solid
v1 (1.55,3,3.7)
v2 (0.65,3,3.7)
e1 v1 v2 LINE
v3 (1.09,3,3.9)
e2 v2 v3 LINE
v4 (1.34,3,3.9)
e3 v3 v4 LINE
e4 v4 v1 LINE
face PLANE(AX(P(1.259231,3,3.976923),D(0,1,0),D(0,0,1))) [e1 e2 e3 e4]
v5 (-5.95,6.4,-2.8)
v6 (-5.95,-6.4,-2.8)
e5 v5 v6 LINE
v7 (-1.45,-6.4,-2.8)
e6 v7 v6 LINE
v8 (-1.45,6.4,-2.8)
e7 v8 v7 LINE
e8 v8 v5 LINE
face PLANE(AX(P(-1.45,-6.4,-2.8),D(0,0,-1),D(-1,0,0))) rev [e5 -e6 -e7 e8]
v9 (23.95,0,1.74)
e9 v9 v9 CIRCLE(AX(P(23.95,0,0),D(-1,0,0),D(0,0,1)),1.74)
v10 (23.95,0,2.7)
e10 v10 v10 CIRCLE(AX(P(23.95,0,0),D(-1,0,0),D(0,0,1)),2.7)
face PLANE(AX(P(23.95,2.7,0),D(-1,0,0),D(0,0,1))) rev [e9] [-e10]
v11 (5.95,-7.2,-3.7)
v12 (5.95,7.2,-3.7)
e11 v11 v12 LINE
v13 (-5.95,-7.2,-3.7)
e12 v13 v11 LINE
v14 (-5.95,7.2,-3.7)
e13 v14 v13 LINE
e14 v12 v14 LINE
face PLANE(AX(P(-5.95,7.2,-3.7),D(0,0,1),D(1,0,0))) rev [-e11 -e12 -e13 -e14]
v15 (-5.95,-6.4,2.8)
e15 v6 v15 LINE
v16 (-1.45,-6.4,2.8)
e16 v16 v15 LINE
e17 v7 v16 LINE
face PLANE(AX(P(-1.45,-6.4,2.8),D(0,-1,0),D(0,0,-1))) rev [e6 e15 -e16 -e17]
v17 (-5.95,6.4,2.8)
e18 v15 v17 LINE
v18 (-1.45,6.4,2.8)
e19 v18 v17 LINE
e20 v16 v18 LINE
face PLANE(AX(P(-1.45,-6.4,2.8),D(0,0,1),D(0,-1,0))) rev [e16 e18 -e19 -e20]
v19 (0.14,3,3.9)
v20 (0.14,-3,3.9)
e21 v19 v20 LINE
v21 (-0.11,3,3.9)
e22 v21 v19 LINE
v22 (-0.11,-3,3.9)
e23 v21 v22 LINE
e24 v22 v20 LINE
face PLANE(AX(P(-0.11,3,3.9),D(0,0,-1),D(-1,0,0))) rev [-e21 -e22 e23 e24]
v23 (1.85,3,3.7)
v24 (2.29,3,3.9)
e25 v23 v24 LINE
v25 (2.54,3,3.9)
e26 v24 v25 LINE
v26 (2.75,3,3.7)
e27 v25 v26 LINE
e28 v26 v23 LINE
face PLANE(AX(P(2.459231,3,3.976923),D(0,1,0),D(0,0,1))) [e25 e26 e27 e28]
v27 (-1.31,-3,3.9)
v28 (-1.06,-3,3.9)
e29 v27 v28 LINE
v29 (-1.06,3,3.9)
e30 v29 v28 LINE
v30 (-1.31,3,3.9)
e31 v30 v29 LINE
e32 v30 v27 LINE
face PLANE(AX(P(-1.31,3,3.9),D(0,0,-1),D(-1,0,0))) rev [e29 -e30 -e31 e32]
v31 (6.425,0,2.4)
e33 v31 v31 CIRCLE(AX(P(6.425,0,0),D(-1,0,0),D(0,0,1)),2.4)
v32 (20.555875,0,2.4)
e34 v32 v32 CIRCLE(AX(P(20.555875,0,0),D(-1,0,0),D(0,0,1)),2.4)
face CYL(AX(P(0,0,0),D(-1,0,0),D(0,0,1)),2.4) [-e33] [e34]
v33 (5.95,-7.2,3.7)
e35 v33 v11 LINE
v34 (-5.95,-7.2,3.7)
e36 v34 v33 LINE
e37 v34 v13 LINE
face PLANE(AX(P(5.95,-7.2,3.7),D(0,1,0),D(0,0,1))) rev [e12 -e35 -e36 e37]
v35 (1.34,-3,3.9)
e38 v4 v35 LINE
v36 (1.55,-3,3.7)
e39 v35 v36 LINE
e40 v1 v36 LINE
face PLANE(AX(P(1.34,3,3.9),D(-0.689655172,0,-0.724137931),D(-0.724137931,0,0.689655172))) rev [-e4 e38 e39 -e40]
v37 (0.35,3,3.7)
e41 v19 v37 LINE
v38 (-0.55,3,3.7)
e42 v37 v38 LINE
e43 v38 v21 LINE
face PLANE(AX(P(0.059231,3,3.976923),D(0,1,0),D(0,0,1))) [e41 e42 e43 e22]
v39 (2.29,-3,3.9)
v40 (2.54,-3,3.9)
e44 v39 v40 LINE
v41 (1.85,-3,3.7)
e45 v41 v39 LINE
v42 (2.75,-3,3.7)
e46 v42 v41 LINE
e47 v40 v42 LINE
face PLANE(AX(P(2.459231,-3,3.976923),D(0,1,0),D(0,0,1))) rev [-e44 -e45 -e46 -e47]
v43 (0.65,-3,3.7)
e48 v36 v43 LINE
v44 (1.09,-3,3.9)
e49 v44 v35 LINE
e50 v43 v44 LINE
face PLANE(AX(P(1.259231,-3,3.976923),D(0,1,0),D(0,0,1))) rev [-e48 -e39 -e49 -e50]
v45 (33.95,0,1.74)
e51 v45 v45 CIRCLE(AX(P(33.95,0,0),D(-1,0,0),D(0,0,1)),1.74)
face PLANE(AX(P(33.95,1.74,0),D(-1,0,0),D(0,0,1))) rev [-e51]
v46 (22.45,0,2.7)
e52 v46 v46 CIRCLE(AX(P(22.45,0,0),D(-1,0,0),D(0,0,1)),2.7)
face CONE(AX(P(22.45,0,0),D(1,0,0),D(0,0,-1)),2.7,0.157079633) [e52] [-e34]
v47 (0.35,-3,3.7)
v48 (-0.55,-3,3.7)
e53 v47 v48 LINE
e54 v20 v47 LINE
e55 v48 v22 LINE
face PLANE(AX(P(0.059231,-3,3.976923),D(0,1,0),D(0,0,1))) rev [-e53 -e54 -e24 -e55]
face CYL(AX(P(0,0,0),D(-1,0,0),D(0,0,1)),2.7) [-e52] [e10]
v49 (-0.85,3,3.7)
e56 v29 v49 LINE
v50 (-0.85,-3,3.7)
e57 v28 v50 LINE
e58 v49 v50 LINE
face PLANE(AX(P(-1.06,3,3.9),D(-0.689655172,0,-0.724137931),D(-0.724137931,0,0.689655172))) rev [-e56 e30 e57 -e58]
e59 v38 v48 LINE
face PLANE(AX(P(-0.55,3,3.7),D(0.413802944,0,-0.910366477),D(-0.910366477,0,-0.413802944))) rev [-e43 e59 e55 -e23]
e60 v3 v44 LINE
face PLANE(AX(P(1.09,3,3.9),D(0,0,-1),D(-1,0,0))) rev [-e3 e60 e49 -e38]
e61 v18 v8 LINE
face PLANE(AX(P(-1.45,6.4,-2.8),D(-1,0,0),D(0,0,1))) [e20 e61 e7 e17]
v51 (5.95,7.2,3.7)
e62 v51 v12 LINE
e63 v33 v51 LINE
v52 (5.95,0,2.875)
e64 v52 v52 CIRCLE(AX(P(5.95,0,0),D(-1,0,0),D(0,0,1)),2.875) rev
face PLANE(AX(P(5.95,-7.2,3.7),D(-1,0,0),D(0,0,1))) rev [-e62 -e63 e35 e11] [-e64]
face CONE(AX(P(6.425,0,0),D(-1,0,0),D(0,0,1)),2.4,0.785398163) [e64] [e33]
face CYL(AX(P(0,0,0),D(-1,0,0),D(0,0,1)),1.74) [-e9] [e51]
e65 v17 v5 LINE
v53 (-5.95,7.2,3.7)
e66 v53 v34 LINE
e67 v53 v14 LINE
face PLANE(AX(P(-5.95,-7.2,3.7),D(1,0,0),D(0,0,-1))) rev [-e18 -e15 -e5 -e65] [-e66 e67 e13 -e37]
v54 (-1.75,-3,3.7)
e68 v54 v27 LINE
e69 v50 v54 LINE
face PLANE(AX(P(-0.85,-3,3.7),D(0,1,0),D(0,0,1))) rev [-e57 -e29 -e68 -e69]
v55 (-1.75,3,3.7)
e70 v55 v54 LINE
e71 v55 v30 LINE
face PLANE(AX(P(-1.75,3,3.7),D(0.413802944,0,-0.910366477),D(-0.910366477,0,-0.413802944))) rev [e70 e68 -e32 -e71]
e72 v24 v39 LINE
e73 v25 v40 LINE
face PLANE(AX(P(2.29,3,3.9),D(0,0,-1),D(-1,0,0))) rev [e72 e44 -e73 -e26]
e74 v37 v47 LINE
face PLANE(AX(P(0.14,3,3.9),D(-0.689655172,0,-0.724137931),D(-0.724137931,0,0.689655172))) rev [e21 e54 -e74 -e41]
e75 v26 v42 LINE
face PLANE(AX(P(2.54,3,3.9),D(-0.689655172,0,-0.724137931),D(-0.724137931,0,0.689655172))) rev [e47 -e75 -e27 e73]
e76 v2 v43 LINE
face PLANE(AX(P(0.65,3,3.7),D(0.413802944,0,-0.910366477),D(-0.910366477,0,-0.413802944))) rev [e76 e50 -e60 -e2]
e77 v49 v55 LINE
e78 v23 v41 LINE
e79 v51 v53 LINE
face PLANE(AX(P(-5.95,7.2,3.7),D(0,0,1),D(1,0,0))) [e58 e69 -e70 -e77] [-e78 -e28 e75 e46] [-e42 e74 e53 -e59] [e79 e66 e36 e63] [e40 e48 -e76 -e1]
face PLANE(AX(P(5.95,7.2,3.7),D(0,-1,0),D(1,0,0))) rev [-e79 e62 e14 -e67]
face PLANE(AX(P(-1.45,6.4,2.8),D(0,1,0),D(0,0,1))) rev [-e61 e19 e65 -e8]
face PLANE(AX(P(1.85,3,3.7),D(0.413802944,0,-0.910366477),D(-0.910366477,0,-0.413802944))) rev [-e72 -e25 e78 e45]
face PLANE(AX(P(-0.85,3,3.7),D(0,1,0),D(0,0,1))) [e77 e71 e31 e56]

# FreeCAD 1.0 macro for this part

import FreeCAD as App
import Part
import Sketcher
from FreeCAD import Vector
Q = App.Units.Quantity


def add_polygon(sketch, points):
    """Adds a closed chain of lines whose ends are joined by coincident constraints."""
    first, n = sketch.GeometryCount, len(points)
    for a, b in zip(points, points[1:] + points[:1]):
        sketch.addGeometry(Part.LineSegment(App.Vector(*a, 0), App.Vector(*b, 0)), False)
    for i in range(n):
        sketch.addConstraint(Sketcher.Constraint("Coincident", first + i, 2, first + (i + 1) % n, 1))

doc = App.newDocument("Part")
body = doc.addObject("PartDesign::Body", "Body")

sketch1 = body.newObject("Sketcher::SketchObject", "Sketch")
sketch1.AttachmentSupport = (doc.getObject("XY_Plane"), [""])
sketch1.MapMode = "FlatFace"
add_polygon(sketch1, [(-6, 7), (-6, -7), (6, -7), (6, 7)])
sketch1.addConstraint([
    Sketcher.Constraint("Vertical", 0),
    Sketcher.Constraint("Horizontal", 1),
    Sketcher.Constraint("Vertical", 2),
    Sketcher.Constraint("Horizontal", 3),
    Sketcher.Constraint("Symmetric", 0, 2, 2, 2, -1, 1),
    Sketcher.Constraint("DistanceX", 1, 1, 1, 2, 11.9),
    Sketcher.Constraint("DistanceY", 0, 2, 0, 1, 14.4),
])
pad1 = body.newObject("PartDesign::Pad", "Pad")
pad1.Profile = sketch1
pad1.Length = 7.4
pad1.Midplane = True

sketch2 = body.newObject("Sketcher::SketchObject", "Sketch001")
sketch2.AttachmentSupport = (doc.getObject("XY_Plane"), [""])
sketch2.MapMode = "FlatFace"
add_polygon(sketch2, [(6, 2.9), (6, 0), (34, 0), (34, 1.7), (23.9, 1.7), (23.9, 2.7), (22.4, 2.7), (20.6, 2.4), (6.4, 2.4)])
sketch2.addConstraint([
    Sketcher.Constraint("Vertical", 0),
    Sketcher.Constraint("Horizontal", 1),
    Sketcher.Constraint("Vertical", 2),
    Sketcher.Constraint("Horizontal", 3),
    Sketcher.Constraint("Vertical", 4),
    Sketcher.Constraint("Horizontal", 5),
    Sketcher.Constraint("Horizontal", 7),
    Sketcher.Constraint("PointOnObject", 0, 2, -1),
    Sketcher.Constraint("DistanceX", 1, 1, 1, 2, 28.0),
    Sketcher.Constraint("DistanceX", 3, 2, 3, 1, 10.0),
    Sketcher.Constraint("Angle", 6, Q("-171 deg")),
    Sketcher.Constraint("Angle", 8, Q("135 deg")),
    Sketcher.Constraint("DistanceX", 5, 2, 5, 1, 1.5),
    Sketcher.Constraint("DistanceY", 2, 1, 2, 2, 1.74),
    Sketcher.Constraint("DistanceY", 4, 1, 4, 2, 0.96),
    Sketcher.Constraint("DistanceY", -1, 1, 6, 2, 2.4),
    Sketcher.Constraint("DistanceY", 0, 2, 0, 1, 2.875),
    Sketcher.Constraint("DistanceX", -1, 1, 0, 2, 5.95),
])
revolution = body.newObject("PartDesign::Revolution", "Revolution")
revolution.Profile = sketch2
revolution.ReferenceAxis = (sketch2, ["H_Axis"])
revolution.Angle = 360

sketch3 = body.newObject("Sketcher::SketchObject", "Sketch002")
sketch3.AttachmentSupport = (doc.getObject("XZ_Plane"), [""])
sketch3.MapMode = "FlatFace"
add_polygon(sketch3, [(-1.75, 3.7), (-1.31, 3.9), (-1.06, 3.9), (-0.85, 3.7)])
add_polygon(sketch3, [(0.35, 3.7), (-0.55, 3.7), (-0.11, 3.9), (0.14, 3.9)])
add_polygon(sketch3, [(1.55, 3.7), (0.65, 3.7), (1.09, 3.9), (1.34, 3.9)])
add_polygon(sketch3, [(2.75, 3.7), (1.85, 3.7), (2.29, 3.9), (2.54, 3.9)])
sketch3.addConstraint([
    Sketcher.Constraint("Horizontal", 1),
    Sketcher.Constraint("Horizontal", 3),
    Sketcher.Constraint("Horizontal", 4),
    Sketcher.Constraint("Horizontal", 6),
    Sketcher.Constraint("Horizontal", 8),
    Sketcher.Constraint("Horizontal", 10),
    Sketcher.Constraint("Horizontal", 12),
    Sketcher.Constraint("Horizontal", 14),
    Sketcher.Constraint("Parallel", 0, 5),
    Sketcher.Constraint("Parallel", 2, 7),
    Sketcher.Constraint("Parallel", 5, 9),
    Sketcher.Constraint("Parallel", 7, 11),
    Sketcher.Constraint("Parallel", 9, 13),
    Sketcher.Constraint("Parallel", 11, 15),
    Sketcher.Constraint("Horizontal", 3, 2, 4, 2),
    Sketcher.Constraint("Horizontal", 1, 2, 5, 2),
    Sketcher.Constraint("Horizontal", 7, 2, 8, 2),
    Sketcher.Constraint("Horizontal", 6, 2, 9, 2),
    Sketcher.Constraint("Horizontal", 11, 2, 12, 2),
    Sketcher.Constraint("Horizontal", 10, 2, 13, 2),
    Sketcher.Constraint("Equal", 3, 4),
    Sketcher.Constraint("Equal", 4, 8),
    Sketcher.Constraint("Equal", 8, 12),
    Sketcher.Constraint("DistanceX", 3, 2, 3, 1, 0.9),
    Sketcher.Constraint("DistanceX", 1, 1, 1, 2, 0.25),
    Sketcher.Constraint("DistanceY", -1, 1, 0, 2, 3.9),
    Sketcher.Constraint("DistanceY", -1, 1, 2, 2, 3.7),
    Sketcher.Constraint("DistanceX", 2, 2, 4, 2, 0.3),
    Sketcher.Constraint("DistanceX", 7, 2, 8, 2, 0.3),
    Sketcher.Constraint("DistanceX", 11, 2, 12, 2, 0.3),
    Sketcher.Constraint("Distance", 2, 0.29),
    Sketcher.Constraint("DistanceX", 0, 2, -1, 1, 1.31),
])
pad2 = body.newObject("PartDesign::Pad", "Pad001")
pad2.Profile = sketch3
pad2.Length = 6
pad2.Midplane = True

sketch4 = body.newObject("Sketcher::SketchObject", "Sketch003")
sketch4.AttachmentSupport = (doc.getObject("YZ_Plane"), [""])
sketch4.MapMode = "FlatFace"
sketch4.AttachmentOffset = App.Placement(Vector(0, 0, -5.95), App.Rotation())
add_polygon(sketch4, [(6, -3), (-6, -3), (-6, 3), (6, 3)])
sketch4.addConstraint([
    Sketcher.Constraint("Horizontal", 0),
    Sketcher.Constraint("Vertical", 1),
    Sketcher.Constraint("Horizontal", 2),
    Sketcher.Constraint("Vertical", 3),
    Sketcher.Constraint("Symmetric", 0, 2, 2, 2, -1, 1),
    Sketcher.Constraint("DistanceX", 0, 2, 0, 1, 12.8),
    Sketcher.Constraint("DistanceY", 1, 1, 1, 2, 5.6),
])
pocket1 = body.newObject("PartDesign::Pocket", "Pocket")
pocket1.Profile = sketch4
pocket1.Length = 4.5
pocket1.Reversed = True

doc.recompute()
